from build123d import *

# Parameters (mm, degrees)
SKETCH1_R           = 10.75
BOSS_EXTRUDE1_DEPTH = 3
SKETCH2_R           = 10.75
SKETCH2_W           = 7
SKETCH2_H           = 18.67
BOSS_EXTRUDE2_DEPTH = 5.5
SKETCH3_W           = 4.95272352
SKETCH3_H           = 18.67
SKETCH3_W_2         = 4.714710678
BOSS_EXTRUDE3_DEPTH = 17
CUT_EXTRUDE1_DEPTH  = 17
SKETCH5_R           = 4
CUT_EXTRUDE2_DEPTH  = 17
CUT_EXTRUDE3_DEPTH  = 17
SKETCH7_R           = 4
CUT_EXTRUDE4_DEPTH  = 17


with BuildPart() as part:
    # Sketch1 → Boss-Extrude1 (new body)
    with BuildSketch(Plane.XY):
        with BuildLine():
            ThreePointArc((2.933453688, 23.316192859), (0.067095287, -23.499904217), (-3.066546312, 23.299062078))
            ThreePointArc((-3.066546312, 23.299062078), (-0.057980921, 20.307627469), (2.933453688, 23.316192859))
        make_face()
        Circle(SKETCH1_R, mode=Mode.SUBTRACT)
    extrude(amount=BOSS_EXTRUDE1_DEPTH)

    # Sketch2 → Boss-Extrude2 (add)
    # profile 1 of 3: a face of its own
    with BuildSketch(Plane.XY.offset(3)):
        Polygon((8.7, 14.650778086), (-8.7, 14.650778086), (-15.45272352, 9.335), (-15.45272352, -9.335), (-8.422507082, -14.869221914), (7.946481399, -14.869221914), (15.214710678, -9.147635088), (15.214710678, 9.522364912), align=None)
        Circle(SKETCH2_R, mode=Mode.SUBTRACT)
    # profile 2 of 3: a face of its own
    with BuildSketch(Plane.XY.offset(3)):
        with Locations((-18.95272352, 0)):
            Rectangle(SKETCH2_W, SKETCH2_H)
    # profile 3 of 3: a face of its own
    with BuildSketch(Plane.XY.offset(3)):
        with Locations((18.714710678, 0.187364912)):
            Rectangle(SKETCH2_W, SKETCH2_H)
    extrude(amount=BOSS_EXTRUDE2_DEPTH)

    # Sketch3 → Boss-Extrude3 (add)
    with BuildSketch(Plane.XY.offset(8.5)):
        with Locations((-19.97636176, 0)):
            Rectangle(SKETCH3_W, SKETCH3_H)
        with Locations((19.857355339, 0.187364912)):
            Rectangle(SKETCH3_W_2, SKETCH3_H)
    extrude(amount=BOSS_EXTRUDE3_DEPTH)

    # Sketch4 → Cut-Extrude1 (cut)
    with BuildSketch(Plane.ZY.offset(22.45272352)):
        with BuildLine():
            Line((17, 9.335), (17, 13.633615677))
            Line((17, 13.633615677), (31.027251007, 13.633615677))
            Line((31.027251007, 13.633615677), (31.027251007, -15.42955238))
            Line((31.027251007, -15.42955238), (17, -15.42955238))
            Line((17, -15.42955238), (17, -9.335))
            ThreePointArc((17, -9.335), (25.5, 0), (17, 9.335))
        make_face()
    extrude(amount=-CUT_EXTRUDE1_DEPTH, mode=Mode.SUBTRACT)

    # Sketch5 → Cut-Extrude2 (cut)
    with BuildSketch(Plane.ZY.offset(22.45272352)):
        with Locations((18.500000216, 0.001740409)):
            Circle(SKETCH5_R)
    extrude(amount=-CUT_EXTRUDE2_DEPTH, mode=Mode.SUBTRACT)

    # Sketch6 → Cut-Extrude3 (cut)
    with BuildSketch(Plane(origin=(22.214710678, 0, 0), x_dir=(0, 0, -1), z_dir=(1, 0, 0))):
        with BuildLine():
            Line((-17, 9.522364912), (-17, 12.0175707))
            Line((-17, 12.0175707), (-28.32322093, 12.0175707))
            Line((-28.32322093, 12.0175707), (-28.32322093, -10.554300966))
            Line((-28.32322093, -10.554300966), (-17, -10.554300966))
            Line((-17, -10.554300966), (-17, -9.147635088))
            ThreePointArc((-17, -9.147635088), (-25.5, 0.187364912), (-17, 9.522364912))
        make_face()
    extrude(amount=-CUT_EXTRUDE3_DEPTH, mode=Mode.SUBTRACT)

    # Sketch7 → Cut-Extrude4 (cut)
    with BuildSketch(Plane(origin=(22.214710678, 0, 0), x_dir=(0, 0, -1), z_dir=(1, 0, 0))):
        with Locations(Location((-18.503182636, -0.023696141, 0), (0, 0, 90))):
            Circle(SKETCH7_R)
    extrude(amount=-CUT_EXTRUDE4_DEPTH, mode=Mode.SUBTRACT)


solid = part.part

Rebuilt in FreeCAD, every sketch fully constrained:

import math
import FreeCAD as App
import Part
import Sketcher
Q = App.Units.Quantity

doc = App.newDocument("Part")
params = doc.addObject("Spreadsheet::Sheet", "Params")
for row, (alias, value) in enumerate([
    ("sketch1_diameter", "21.5 mm"),
    ("sketch1_radius", "23.5 mm"),
    ("sketch1_width", "3 mm"),
    ("pad1_length", "3 mm"),
    ("sketch2_diameter", "21.5 mm"),
    ("sketch2_width", "7 mm"),
    ("sketch2_width2", "17.4 mm"),
    ("sketch2_height", "18.67 mm"),
    ("pad2_length", "5.5 mm"),
    ("sketch3_height", "18.67 mm"),
    ("pad3_length", "17 mm"),
    ("pocket1_length", "17 mm"),
    ("sketch5_diameter", "8 mm"),
    ("pocket2_length", "17 mm"),
    ("pocket3_length", "17 mm"),
    ("sketch7_diameter", "8 mm"),
    ("pocket4_length", "17 mm"),
], start=1):
    params.set(f"A{row}", alias)
    params.set(f"B{row}", "=" + value)
    params.setAlias(f"B{row}", alias)

body = doc.addObject("PartDesign::Body", "Body")

# Sketch on XY plane
sketch1 = body.newObject("Sketcher::SketchObject", "Sketch")
sketch1.AttachmentSupport = (doc.getObject("XY_Plane"), [""])
sketch1.MapMode = "FlatFace"
sketch1.addGeometry([
    Part.ArcOfCircle(Part.Circle(App.Vector(0, 0, 0), App.Vector(0, 0, 1), 23.5), math.radians(97.497985), math.radians(442.829187)),
    Part.ArcOfCircle(Part.Circle(App.Vector(-0.066546, 23.307627, 0), App.Vector(0, 0, 1), 3.000012), math.radians(-179.836414), math.radians(0.163586)),
    Part.Circle(App.Vector(0, 0, 0), App.Vector(0, 0, 1), 10.75),
], False)
sketch1.addConstraint([
    Sketcher.Constraint("Coincident", 0, 1, 1, 1),
    Sketcher.Constraint("Coincident", 1, 2, 0, 2),
    Sketcher.Constraint("Coincident", 0, 3, -1, 1),
    Sketcher.Constraint("Coincident", 2, 3, -1, 1),
    Sketcher.Constraint("Diameter", 2, 21.5),
    Sketcher.Constraint("Radius", 0, 23.5),
    Sketcher.Constraint("DistanceX", 0, 1, 1, 3, 3.0),
    Sketcher.Constraint("DistanceX", 1, 3, 1, 2, 3.0),
    Sketcher.Constraint("DistanceY", 0, 1, 1, 2, 0.017131),
])
sketch1.setExpression("Constraints[4]", "Params.sketch1_diameter")
sketch1.setExpression("Constraints[5]", "Params.sketch1_radius")
sketch1.setExpression("Constraints[7]", "Params.sketch1_width")
pad1 = body.newObject("PartDesign::Pad", "Pad")
pad1.Profile = sketch1
pad1.setExpression("Length", "Params.pad1_length")

# Sketch on XY plane
sketch2 = body.newObject("Sketcher::SketchObject", "Sketch001")
sketch2.AttachmentSupport = (doc.getObject("XY_Plane"), [""])
sketch2.MapMode = "FlatFace"
sketch2.AttachmentOffset = App.Placement(App.Vector(0, 0, 3), App.Rotation())
sketch2.addGeometry([
    Part.LineSegment(App.Vector(9, 15, 0), App.Vector(-9, 15, 0)),  # 0
    Part.LineSegment(App.Vector(-9, 15, 0), App.Vector(-15, 9, 0)),  # 1
    Part.LineSegment(App.Vector(-15, 9, 0), App.Vector(-22, 9, 0)),  # 2
    Part.LineSegment(App.Vector(-22, 9, 0), App.Vector(-22, -9, 0)),  # 3
    Part.LineSegment(App.Vector(-22, -9, 0), App.Vector(-15, -9, 0)),  # 4
    Part.LineSegment(App.Vector(-15, -9, 0), App.Vector(-8, -15, 0)),  # 5
    Part.LineSegment(App.Vector(-8, -15, 0), App.Vector(8, -15, 0)),  # 6
    Part.LineSegment(App.Vector(8, -15, 0), App.Vector(15, -9, 0)),  # 7
    Part.LineSegment(App.Vector(15, -9, 0), App.Vector(22, -9, 0)),  # 8
    Part.LineSegment(App.Vector(22, -9, 0), App.Vector(22, 10, 0)),  # 9
    Part.LineSegment(App.Vector(22, 10, 0), App.Vector(15, 10, 0)),  # 10
    Part.LineSegment(App.Vector(15, 10, 0), App.Vector(9, 15, 0)),  # 11
    Part.Circle(App.Vector(0, 0, 0), App.Vector(0, 0, 1), 11),  # 12
], False)
sketch2.addConstraint([
    Sketcher.Constraint("Coincident", 0, 2, 1, 1),
    Sketcher.Constraint("Coincident", 1, 2, 2, 1),
    Sketcher.Constraint("Coincident", 2, 2, 3, 1),
    Sketcher.Constraint("Coincident", 3, 2, 4, 1),
    Sketcher.Constraint("Coincident", 4, 2, 5, 1),
    Sketcher.Constraint("Coincident", 5, 2, 6, 1),
    Sketcher.Constraint("Coincident", 6, 2, 7, 1),
    Sketcher.Constraint("Coincident", 7, 2, 8, 1),
    Sketcher.Constraint("Coincident", 8, 2, 9, 1),
    Sketcher.Constraint("Coincident", 9, 2, 10, 1),
    Sketcher.Constraint("Coincident", 10, 2, 11, 1),
    Sketcher.Constraint("Coincident", 11, 2, 0, 1),
    Sketcher.Constraint("Horizontal", 0),
    Sketcher.Constraint("Horizontal", 2),
    Sketcher.Constraint("Vertical", 3),
    Sketcher.Constraint("Horizontal", 4),
    Sketcher.Constraint("Horizontal", 6),
    Sketcher.Constraint("Horizontal", 8),
    Sketcher.Constraint("Vertical", 9),
    Sketcher.Constraint("Horizontal", 10),
    Sketcher.Constraint("Coincident", 12, 3, -1, 1),
    Sketcher.Constraint("Symmetric", 1, 2, 4, 2, -1),
    Sketcher.Constraint("Parallel", 1, 7),
    Sketcher.Constraint("Parallel", 5, 11),
    Sketcher.Constraint("Vertical", 7, 2, 10, 2),
    Sketcher.Constraint("Equal", 4, 8),
    Sketcher.Constraint("Equal", 3, 9),
    Sketcher.Constraint("Diameter", 12, 21.5),
    Sketcher.Constraint("DistanceX", 2, 2, 2, 1, 7.0),
    Sketcher.Constraint("DistanceX", 0, 2, 0, 1, 17.4),
    Sketcher.Constraint("DistanceY", 3, 2, 3, 1, 18.67),
    Sketcher.Constraint("DistanceX", 0, 2, -1, 1, 8.7),
    Sketcher.Constraint("Angle", 1, Q("-141.79 deg")),
    Sketcher.Constraint("Angle", 5, Q("-38.21 deg")),
    Sketcher.Constraint("DistanceX", 6, 1, 6, 2, 16.368988),
    Sketcher.Constraint("DistanceY", -1, 1, 0, 2, 14.650778),
    Sketcher.Constraint("DistanceY", 5, 2, -1, 1, 14.869222),
])
sketch2.setExpression("Constraints[27]", "Params.sketch2_diameter")
sketch2.setExpression("Constraints[28]", "Params.sketch2_width")
sketch2.setExpression("Constraints[29]", "Params.sketch2_width2")
sketch2.setExpression("Constraints[30]", "Params.sketch2_height")
pad2 = body.newObject("PartDesign::Pad", "Pad001")
pad2.Profile = sketch2
pad2.setExpression("Length", "Params.pad2_length")

# Sketch on XY plane
sketch3 = body.newObject("Sketcher::SketchObject", "Sketch002")
sketch3.AttachmentSupport = (doc.getObject("XY_Plane"), [""])
sketch3.MapMode = "FlatFace"
sketch3.AttachmentOffset = App.Placement(App.Vector(0, 0, 8.5), App.Rotation())
sketch3.addGeometry([
    Part.LineSegment(App.Vector(-22.5, 9.3, 0), App.Vector(-22.5, -9.3, 0)),  # 0
    Part.LineSegment(App.Vector(-22.5, -9.3, 0), App.Vector(-17.5, -9.3, 0)),  # 1
    Part.LineSegment(App.Vector(-17.5, -9.3, 0), App.Vector(-17.5, 9.3, 0)),  # 2
    Part.LineSegment(App.Vector(-17.5, 9.3, 0), App.Vector(-22.5, 9.3, 0)),  # 3
    Part.LineSegment(App.Vector(17.5, 9.5, 0), App.Vector(17.5, -9.1, 0)),  # 4
    Part.LineSegment(App.Vector(17.5, -9.1, 0), App.Vector(22.2, -9.1, 0)),  # 5
    Part.LineSegment(App.Vector(22.2, -9.1, 0), App.Vector(22.2, 9.5, 0)),  # 6
    Part.LineSegment(App.Vector(22.2, 9.5, 0), App.Vector(17.5, 9.5, 0)),  # 7
], False)
sketch3.addConstraint([
    Sketcher.Constraint("Coincident", 0, 2, 1, 1),
    Sketcher.Constraint("Coincident", 1, 2, 2, 1),
    Sketcher.Constraint("Coincident", 2, 2, 3, 1),
    Sketcher.Constraint("Coincident", 3, 2, 0, 1),
    Sketcher.Constraint("Coincident", 4, 2, 5, 1),
    Sketcher.Constraint("Coincident", 5, 2, 6, 1),
    Sketcher.Constraint("Coincident", 6, 2, 7, 1),
    Sketcher.Constraint("Coincident", 7, 2, 4, 1),
    Sketcher.Constraint("Vertical", 0),
    Sketcher.Constraint("Horizontal", 1),
    Sketcher.Constraint("Vertical", 2),
    Sketcher.Constraint("Horizontal", 3),
    Sketcher.Constraint("Vertical", 4),
    Sketcher.Constraint("Horizontal", 5),
    Sketcher.Constraint("Vertical", 6),
    Sketcher.Constraint("Horizontal", 7),
    Sketcher.Constraint("Equal", 2, 4),
    Sketcher.Constraint("DistanceX", 1, 2, 4, 2, 35.0),
    Sketcher.Constraint("DistanceY", 0, 2, 0, 1, 18.67),
    Sketcher.Constraint("DistanceX", 1, 2, -1, 1, 17.5),
    Sketcher.Constraint("DistanceY", 0, 2, -1, 1, 9.335),
    Sketcher.Constraint("DistanceX", 5, 1, 5, 2, 4.714711),
    Sketcher.Constraint("DistanceX", 1, 1, 1, 2, 4.952724),
    Sketcher.Constraint("DistanceY", 4, 2, -1, 1, 9.147635),
])
sketch3.setExpression("Constraints[18]", "Params.sketch3_height")
pad3 = body.newObject("PartDesign::Pad", "Pad002")
pad3.Profile = sketch3
pad3.setExpression("Length", "Params.pad3_length")

# Sketch on YZ plane
sketch4 = body.newObject("Sketcher::SketchObject", "Sketch003")
sketch4.AttachmentSupport = (doc.getObject("YZ_Plane"), [""])
sketch4.MapMode = "FlatFace"
sketch4.AttachmentOffset = App.Placement(App.Vector(0, 0, -22.452724), App.Rotation())
sketch4.addGeometry([
    Part.LineSegment(App.Vector(13.6, 17, 0), App.Vector(9.3, 17, 0)),  # 0
    Part.ArcOfCircle(Part.Circle(App.Vector(0, 16.1, 0), App.Vector(0, 0, 1), 9.4), math.radians(5), math.radians(175)),  # 1
    Part.LineSegment(App.Vector(-9.3, 17, 0), App.Vector(-15.4, 17, 0)),  # 2
    Part.LineSegment(App.Vector(-15.4, 17, 0), App.Vector(-15.4, 31, 0)),  # 3
    Part.LineSegment(App.Vector(-15.4, 31, 0), App.Vector(13.6, 31, 0)),  # 4
    Part.LineSegment(App.Vector(13.6, 31, 0), App.Vector(13.6, 17, 0)),  # 5
], False)
sketch4.addConstraint([
    Sketcher.Constraint("Coincident", 0, 2, 1, 1),
    Sketcher.Constraint("Coincident", 1, 2, 2, 1),
    Sketcher.Constraint("Coincident", 2, 2, 3, 1),
    Sketcher.Constraint("Coincident", 3, 2, 4, 1),
    Sketcher.Constraint("Coincident", 4, 2, 5, 1),
    Sketcher.Constraint("Coincident", 5, 2, 0, 1),
    Sketcher.Constraint("Horizontal", 0),
    Sketcher.Constraint("Horizontal", 2),
    Sketcher.Constraint("Vertical", 3),
    Sketcher.Constraint("Horizontal", 4),
    Sketcher.Constraint("Vertical", 5),
    Sketcher.Constraint("Symmetric", 0, 2, 1, 2, -2),
    Sketcher.Constraint("DistanceY", -1, 1, 0, 2, 17.0),
    Sketcher.Constraint("DistanceX", 1, 2, 0, 2, 18.67),
    Sketcher.Constraint("Radius", 1, 9.376013),
    Sketcher.Constraint("DistanceX", 4, 1, 4, 2, 29.063168),
    Sketcher.Constraint("DistanceY", 3, 1, 3, 2, 14.027251),
    Sketcher.Constraint("DistanceX", 0, 2, 0, 1, 4.298616),
])
pocket1 = body.newObject("PartDesign::Pocket", "Pocket")
pocket1.Profile = sketch4
pocket1.setExpression("Length", "Params.pocket1_length")
pocket1.Reversed = True

# Sketch on YZ plane
sketch5 = body.newObject("Sketcher::SketchObject", "Sketch004")
sketch5.AttachmentSupport = (doc.getObject("YZ_Plane"), [""])
sketch5.MapMode = "FlatFace"
sketch5.AttachmentOffset = App.Placement(App.Vector(0, 0, -22.452724), App.Rotation())
sketch5.addGeometry(Part.Circle(App.Vector(0, 18.5, 0), App.Vector(0, 0, 1), 4), False)
sketch5.addConstraint([
    Sketcher.Constraint("Diameter", 0, 8.0),
    Sketcher.Constraint("DistanceY", -1, 1, 0, 3, 18.5),
    Sketcher.Constraint("DistanceX", -1, 1, 0, 3, 0.00174),
])
sketch5.setExpression("Constraints[0]", "Params.sketch5_diameter")
pocket2 = body.newObject("PartDesign::Pocket", "Pocket001")
pocket2.Profile = sketch5
pocket2.setExpression("Length", "Params.pocket2_length")
pocket2.Reversed = True

# Sketch on YZ plane
sketch6 = body.newObject("Sketcher::SketchObject", "Sketch005")
sketch6.AttachmentSupport = (doc.getObject("YZ_Plane"), [""])
sketch6.MapMode = "FlatFace"
sketch6.AttachmentOffset = App.Placement(App.Vector(0, 0, 22.214711), App.Rotation())
sketch6.addGeometry([
    Part.LineSegment(App.Vector(9.5, 17, 0), App.Vector(12, 17, 0)),  # 0
    Part.LineSegment(App.Vector(12, 17, 0), App.Vector(12, 28.3, 0)),  # 1
    Part.LineSegment(App.Vector(12, 28.3, 0), App.Vector(-10.6, 28.3, 0)),  # 2
    Part.LineSegment(App.Vector(-10.6, 28.3, 0), App.Vector(-10.6, 17, 0)),  # 3
    Part.LineSegment(App.Vector(-10.6, 17, 0), App.Vector(-9.1, 17, 0)),  # 4
    Part.ArcOfCircle(Part.Circle(App.Vector(0.2, 16.1, 0), App.Vector(0, 0, 1), 9.4), math.radians(5), math.radians(175)),  # 5
], False)
sketch6.addConstraint([
    Sketcher.Constraint("Coincident", 0, 2, 1, 1),
    Sketcher.Constraint("Coincident", 1, 2, 2, 1),
    Sketcher.Constraint("Coincident", 2, 2, 3, 1),
    Sketcher.Constraint("Coincident", 3, 2, 4, 1),
    Sketcher.Constraint("Coincident", 4, 2, 5, 2),
    Sketcher.Constraint("Coincident", 5, 1, 0, 1),
    Sketcher.Constraint("Horizontal", 0),
    Sketcher.Constraint("Vertical", 1),
    Sketcher.Constraint("Horizontal", 2),
    Sketcher.Constraint("Vertical", 3),
    Sketcher.Constraint("Horizontal", 4),
    Sketcher.Constraint("Horizontal", 0, 2, 3, 2),
    Sketcher.Constraint("DistanceY", -1, 1, 0, 2, 17.0),
    Sketcher.Constraint("DistanceX", 4, 2, 5, 1, 18.67),
    Sketcher.Constraint("Radius", 5, 9.376013),
    Sketcher.Constraint("DistanceX", 2, 2, 2, 1, 22.571872),
    Sketcher.Constraint("DistanceY", 1, 1, 1, 2, 11.323221),
    Sketcher.Constraint("DistanceX", 2, 2, -1, 1, 10.554301),
    Sketcher.Constraint("DistanceX", 0, 1, 0, 2, 2.495206),
])
pocket3 = body.newObject("PartDesign::Pocket", "Pocket002")
pocket3.Profile = sketch6
pocket3.setExpression("Length", "Params.pocket3_length")

# Sketch on YZ plane
sketch7 = body.newObject("Sketcher::SketchObject", "Sketch006")
sketch7.AttachmentSupport = (doc.getObject("YZ_Plane"), [""])
sketch7.MapMode = "FlatFace"
sketch7.AttachmentOffset = App.Placement(App.Vector(0, 0, 22.214711), App.Rotation())
sketch7.addGeometry(Part.Circle(App.Vector(0, 18.5, 0), App.Vector(0, 0, 1), 4), False)
sketch7.addConstraint([
    Sketcher.Constraint("Diameter", 0, 8.0),
    Sketcher.Constraint("DistanceX", 0, 3, -1, 1, 0.023696),
    Sketcher.Constraint("DistanceY", -1, 1, 0, 3, 18.503183),
])
sketch7.setExpression("Constraints[0]", "Params.sketch7_diameter")
pocket4 = body.newObject("PartDesign::Pocket", "Pocket003")
pocket4.Profile = sketch7
pocket4.setExpression("Length", "Params.pocket4_length")

doc.recompute()
